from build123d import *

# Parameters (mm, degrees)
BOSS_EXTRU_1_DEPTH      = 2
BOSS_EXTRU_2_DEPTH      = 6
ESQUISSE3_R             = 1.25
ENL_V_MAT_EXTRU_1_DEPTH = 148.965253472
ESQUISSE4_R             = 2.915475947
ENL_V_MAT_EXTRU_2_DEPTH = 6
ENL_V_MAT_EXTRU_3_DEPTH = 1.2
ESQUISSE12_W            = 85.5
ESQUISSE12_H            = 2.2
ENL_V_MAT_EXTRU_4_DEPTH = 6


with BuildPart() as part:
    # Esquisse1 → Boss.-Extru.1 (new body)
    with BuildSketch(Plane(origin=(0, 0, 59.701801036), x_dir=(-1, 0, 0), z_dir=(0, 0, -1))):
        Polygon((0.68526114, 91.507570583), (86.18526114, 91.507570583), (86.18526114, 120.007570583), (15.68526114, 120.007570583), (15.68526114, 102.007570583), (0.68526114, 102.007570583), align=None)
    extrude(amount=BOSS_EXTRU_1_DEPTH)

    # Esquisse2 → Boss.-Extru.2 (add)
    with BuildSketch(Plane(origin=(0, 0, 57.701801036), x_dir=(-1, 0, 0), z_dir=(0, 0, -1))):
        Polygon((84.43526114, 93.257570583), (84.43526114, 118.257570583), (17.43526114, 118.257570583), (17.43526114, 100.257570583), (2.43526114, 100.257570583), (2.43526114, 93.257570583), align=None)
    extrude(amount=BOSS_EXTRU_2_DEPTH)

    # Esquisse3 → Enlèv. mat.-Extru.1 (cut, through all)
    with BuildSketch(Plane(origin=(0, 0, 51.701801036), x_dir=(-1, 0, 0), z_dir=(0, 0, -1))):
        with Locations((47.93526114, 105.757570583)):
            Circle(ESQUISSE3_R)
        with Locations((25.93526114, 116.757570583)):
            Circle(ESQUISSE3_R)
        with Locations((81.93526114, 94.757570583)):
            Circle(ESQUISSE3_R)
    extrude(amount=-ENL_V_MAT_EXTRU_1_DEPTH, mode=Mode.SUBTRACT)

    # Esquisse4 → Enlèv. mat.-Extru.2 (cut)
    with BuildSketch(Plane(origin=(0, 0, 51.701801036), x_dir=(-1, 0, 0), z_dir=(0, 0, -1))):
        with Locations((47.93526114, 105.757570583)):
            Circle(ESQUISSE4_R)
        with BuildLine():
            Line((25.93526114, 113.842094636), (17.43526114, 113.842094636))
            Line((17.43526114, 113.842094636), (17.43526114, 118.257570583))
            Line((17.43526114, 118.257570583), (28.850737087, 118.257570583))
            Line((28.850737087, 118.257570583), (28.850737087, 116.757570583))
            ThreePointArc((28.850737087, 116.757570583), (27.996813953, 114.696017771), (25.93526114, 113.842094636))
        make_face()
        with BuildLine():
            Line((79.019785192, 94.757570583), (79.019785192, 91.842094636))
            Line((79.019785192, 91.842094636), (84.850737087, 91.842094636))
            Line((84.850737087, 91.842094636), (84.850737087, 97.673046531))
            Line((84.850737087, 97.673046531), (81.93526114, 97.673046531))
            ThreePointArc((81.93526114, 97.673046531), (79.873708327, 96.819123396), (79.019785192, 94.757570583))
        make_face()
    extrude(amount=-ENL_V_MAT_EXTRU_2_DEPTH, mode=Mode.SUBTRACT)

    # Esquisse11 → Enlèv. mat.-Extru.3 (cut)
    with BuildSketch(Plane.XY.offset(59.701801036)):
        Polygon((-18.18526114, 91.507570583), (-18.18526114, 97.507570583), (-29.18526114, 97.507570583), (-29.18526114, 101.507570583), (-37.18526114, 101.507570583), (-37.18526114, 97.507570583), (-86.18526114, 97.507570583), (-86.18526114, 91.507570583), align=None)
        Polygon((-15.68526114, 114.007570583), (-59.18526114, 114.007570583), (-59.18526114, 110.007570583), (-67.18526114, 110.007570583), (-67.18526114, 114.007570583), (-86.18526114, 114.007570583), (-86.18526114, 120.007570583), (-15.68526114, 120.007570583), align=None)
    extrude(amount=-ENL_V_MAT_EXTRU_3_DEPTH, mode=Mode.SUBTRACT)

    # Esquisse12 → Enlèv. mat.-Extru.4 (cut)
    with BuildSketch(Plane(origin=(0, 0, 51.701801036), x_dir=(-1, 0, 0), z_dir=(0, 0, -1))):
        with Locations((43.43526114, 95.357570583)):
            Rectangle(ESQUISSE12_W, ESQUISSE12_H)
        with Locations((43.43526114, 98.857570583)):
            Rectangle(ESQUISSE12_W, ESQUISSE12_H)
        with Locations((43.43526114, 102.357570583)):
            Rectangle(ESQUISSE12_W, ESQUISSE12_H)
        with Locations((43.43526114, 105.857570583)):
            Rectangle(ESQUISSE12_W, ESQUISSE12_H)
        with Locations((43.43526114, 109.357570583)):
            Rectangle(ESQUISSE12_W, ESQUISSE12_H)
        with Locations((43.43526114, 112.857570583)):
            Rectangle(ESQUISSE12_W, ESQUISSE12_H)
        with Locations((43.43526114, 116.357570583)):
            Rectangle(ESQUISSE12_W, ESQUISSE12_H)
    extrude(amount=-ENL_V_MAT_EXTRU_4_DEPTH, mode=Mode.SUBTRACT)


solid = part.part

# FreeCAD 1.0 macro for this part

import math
import FreeCAD as App
import Part
import Sketcher

V = App.Vector
Q = App.Units.Quantity


def add_polygon(sketch, points):
    """Adds a closed chain of lines whose ends are joined by coincident constraints."""
    first, n = sketch.GeometryCount, len(points)
    for a, b in zip(points, points[1:] + points[:1]):
        sketch.addGeometry(Part.LineSegment(App.Vector(*a, 0), App.Vector(*b, 0)), False)
    for i in range(n):
        sketch.addConstraint(Sketcher.Constraint("Coincident", first + i, 2, first + (i + 1) % n, 1))

doc = App.newDocument("Part")
body = doc.addObject("PartDesign::Body", "Body")

sketch1 = body.newObject("Sketcher::SketchObject", "Sketch")
sketch1.AttachmentSupport = (doc.getObject("XY_Plane"), [""])
sketch1.MapMode = "FlatFace"
sketch1.AttachmentOffset = App.Placement(V(0, 0, 59.701801), App.Rotation())
add_polygon(sketch1, [(-1, 92), (-86, 92), (-86, 120), (-16, 120), (-16, 102), (-1, 102)])
sketch1.addConstraint(Sketcher.Constraint("Horizontal", 0))
sketch1.addConstraint(Sketcher.Constraint("Vertical", 1))
sketch1.addConstraint(Sketcher.Constraint("Horizontal", 2))
sketch1.addConstraint(Sketcher.Constraint("Vertical", 3))
sketch1.addConstraint(Sketcher.Constraint("Horizontal", 4))
sketch1.addConstraint(Sketcher.Constraint("Vertical", 5))
sketch1.addConstraint(Sketcher.Constraint("DistanceX", 4, 1, 4, 2, Q("15 mm")))
sketch1.addConstraint(Sketcher.Constraint("DistanceY", 3, 2, 3, 1, Q("18 mm")))
sketch1.addConstraint(Sketcher.Constraint("DistanceX", 0, 2, 0, 1, Q("85.5 mm")))
sketch1.addConstraint(Sketcher.Constraint("DistanceY", 1, 1, 1, 2, Q("28.5 mm")))
sketch1.addConstraint(Sketcher.Constraint("DistanceX", 0, 2, -1, 1, Q("86.185261 mm")))
sketch1.addConstraint(Sketcher.Constraint("DistanceY", -1, 1, 0, 2, Q("91.507571 mm")))
pad1 = body.newObject("PartDesign::Pad", "Pad")
pad1.Profile = sketch1
pad1.Length = 2
pad1.Reversed = True

sketch2 = body.newObject("Sketcher::SketchObject", "Sketch001")
sketch2.AttachmentSupport = (doc.getObject("XY_Plane"), [""])
sketch2.MapMode = "FlatFace"
sketch2.AttachmentOffset = App.Placement(V(0, 0, 57.701801), App.Rotation())
add_polygon(sketch2, [(-84, 93), (-84, 118), (-17, 118), (-17, 100), (-2, 100), (-2, 93)])
sketch2.addConstraint(Sketcher.Constraint("Vertical", 0))
sketch2.addConstraint(Sketcher.Constraint("Horizontal", 1))
sketch2.addConstraint(Sketcher.Constraint("Vertical", 2))
sketch2.addConstraint(Sketcher.Constraint("Horizontal", 3))
sketch2.addConstraint(Sketcher.Constraint("Vertical", 4))
sketch2.addConstraint(Sketcher.Constraint("Horizontal", 5))
sketch2.addConstraint(Sketcher.Constraint("DistanceX", 1, 1, 1, 2, Q("67 mm")))
sketch2.addConstraint(Sketcher.Constraint("DistanceX", 3, 1, 3, 2, Q("15 mm")))
sketch2.addConstraint(Sketcher.Constraint("DistanceY", 0, 1, 0, 2, Q("25 mm")))
sketch2.addConstraint(Sketcher.Constraint("DistanceY", 2, 2, 2, 1, Q("18 mm")))
sketch2.addConstraint(Sketcher.Constraint("DistanceX", 0, 2, -1, 1, Q("84.435261 mm")))
sketch2.addConstraint(Sketcher.Constraint("DistanceY", -1, 1, 0, 2, Q("118.257571 mm")))
pad2 = body.newObject("PartDesign::Pad", "Pad001")
pad2.Profile = sketch2
pad2.Length = 6
pad2.Reversed = True

sketch3 = body.newObject("Sketcher::SketchObject", "Sketch002")
sketch3.AttachmentSupport = (doc.getObject("XY_Plane"), [""])
sketch3.MapMode = "FlatFace"
sketch3.AttachmentOffset = App.Placement(V(0, 0, 51.701801), App.Rotation())
sketch3.addGeometry(Part.Circle(V(-47.9, 105.8, 0), V(0, 0, 1), 1.2), False)
sketch3.addGeometry(Part.Circle(V(-25.9, 116.8, 0), V(0, 0, 1), 1.2), False)
sketch3.addGeometry(Part.Circle(V(-81.9, 94.8, 0), V(0, 0, 1), 1.2), False)
sketch3.addConstraint(Sketcher.Constraint("Equal", 0, 1))
sketch3.addConstraint(Sketcher.Constraint("Equal", 1, 2))
sketch3.addConstraint(Sketcher.Constraint("Diameter", 0, Q("2.5 mm")))
sketch3.addConstraint(Sketcher.Constraint("DistanceX", 0, 3, 1, 3, Q("22 mm")))
sketch3.addConstraint(Sketcher.Constraint("DistanceY", 0, 3, 1, 3, Q("11 mm")))
sketch3.addConstraint(Sketcher.Constraint("DistanceX", 2, 3, 0, 3, Q("34 mm")))
sketch3.addConstraint(Sketcher.Constraint("DistanceY", 2, 3, 0, 3, Q("11 mm")))
sketch3.addConstraint(Sketcher.Constraint("DistanceX", 0, 3, -1, 1, Q("47.935261 mm")))
sketch3.addConstraint(Sketcher.Constraint("DistanceY", -1, 1, 0, 3, Q("105.757571 mm")))
pocket1 = body.newObject("PartDesign::Pocket", "Pocket")
pocket1.Profile = sketch3
pocket1.Type = "ThroughAll"
pocket1.Reversed = True

sketch4 = body.newObject("Sketcher::SketchObject", "Sketch003")
sketch4.AttachmentSupport = (doc.getObject("XY_Plane"), [""])
sketch4.MapMode = "FlatFace"
sketch4.AttachmentOffset = App.Placement(V(0, 0, 51.701801), App.Rotation())
sketch4.addGeometry(Part.Circle(V(-47.9, 105.8, 0), V(0, 0, 1), 2.9), False)
sketch4.addGeometry(Part.LineSegment(V(-17.4, 113.8, 0), V(-25.9, 113.8, 0)), False)
sketch4.addGeometry(Part.ArcOfCircle(Part.Circle(V(-25.9, 116.8, 0), V(0, 0, 1), 2.9), math.radians(180), math.radians(270)), False)
sketch4.addGeometry(Part.LineSegment(V(-28.9, 116.8, 0), V(-28.9, 118.3, 0)), False)
sketch4.addGeometry(Part.LineSegment(V(-28.9, 118.3, 0), V(-17.4, 118.3, 0)), False)
sketch4.addGeometry(Part.LineSegment(V(-17.4, 118.3, 0), V(-17.4, 113.8, 0)), False)
sketch4.addGeometry(Part.LineSegment(V(-79, 94.8, 0), V(-79, 91.8, 0)), False)
sketch4.addGeometry(Part.LineSegment(V(-79, 91.8, 0), V(-84.9, 91.8, 0)), False)
sketch4.addGeometry(Part.LineSegment(V(-84.9, 91.8, 0), V(-84.9, 97.7, 0)), False)
sketch4.addGeometry(Part.LineSegment(V(-84.9, 97.7, 0), V(-81.9, 97.7, 0)), False)
sketch4.addGeometry(Part.ArcOfCircle(Part.Circle(V(-81.9, 94.8, 0), V(0, 0, 1), 2.9), math.radians(0), math.radians(90)), False)
sketch4.addConstraint(Sketcher.Constraint("Tangent", 1, 2, 2, 2))
sketch4.addConstraint(Sketcher.Constraint("Tangent", 2, 1, 3, 1))
sketch4.addConstraint(Sketcher.Constraint("Coincident", 3, 2, 4, 1))
sketch4.addConstraint(Sketcher.Constraint("Coincident", 4, 2, 5, 1))
sketch4.addConstraint(Sketcher.Constraint("Coincident", 5, 2, 1, 1))
sketch4.addConstraint(Sketcher.Constraint("Coincident", 6, 2, 7, 1))
sketch4.addConstraint(Sketcher.Constraint("Coincident", 7, 2, 8, 1))
sketch4.addConstraint(Sketcher.Constraint("Coincident", 8, 2, 9, 1))
sketch4.addConstraint(Sketcher.Constraint("Tangent", 9, 2, 10, 2))
sketch4.addConstraint(Sketcher.Constraint("Tangent", 10, 1, 6, 1))
sketch4.addConstraint(Sketcher.Constraint("Horizontal", 1))
sketch4.addConstraint(Sketcher.Constraint("Vertical", 3))
sketch4.addConstraint(Sketcher.Constraint("Horizontal", 4))
sketch4.addConstraint(Sketcher.Constraint("Vertical", 5))
sketch4.addConstraint(Sketcher.Constraint("Vertical", 6))
sketch4.addConstraint(Sketcher.Constraint("Horizontal", 7))
sketch4.addConstraint(Sketcher.Constraint("Vertical", 8))
sketch4.addConstraint(Sketcher.Constraint("Horizontal", 9))
sketch4.addConstraint(Sketcher.Constraint("Equal", 0, 2))
sketch4.addConstraint(Sketcher.Constraint("Equal", 2, 10))
sketch4.addConstraint(Sketcher.Constraint("Equal", 9, 6))
sketch4.addConstraint(Sketcher.Constraint("DistanceX", 1, 2, 1, 1, Q("8.5 mm")))
sketch4.addConstraint(Sketcher.Constraint("DistanceY", 3, 1, 3, 2, Q("1.5 mm")))
sketch4.addConstraint(Sketcher.Constraint("DistanceX", 0, 3, 2, 3, Q("22 mm")))
sketch4.addConstraint(Sketcher.Constraint("DistanceY", 0, 3, 2, 3, Q("11 mm")))
sketch4.addConstraint(Sketcher.Constraint("DistanceX", 10, 3, 0, 3, Q("34 mm")))
sketch4.addConstraint(Sketcher.Constraint("DistanceY", 10, 3, 0, 3, Q("11 mm")))
sketch4.addConstraint(Sketcher.Constraint("DistanceY", 6, 2, 1, 2, Q("22 mm")))
sketch4.addConstraint(Sketcher.Constraint("Diameter", 0, Q("5.830952 mm")))
sketch4.addConstraint(Sketcher.Constraint("DistanceX", 0, 3, -1, 1, Q("47.935261 mm")))
sketch4.addConstraint(Sketcher.Constraint("DistanceY", -1, 1, 0, 3, Q("105.757571 mm")))
pocket2 = body.newObject("PartDesign::Pocket", "Pocket001")
pocket2.Profile = sketch4
pocket2.Length = 6
pocket2.Reversed = True

sketch5 = body.newObject("Sketcher::SketchObject", "Sketch004")
sketch5.AttachmentSupport = (doc.getObject("XY_Plane"), [""])
sketch5.MapMode = "FlatFace"
sketch5.AttachmentOffset = App.Placement(V(0, 0, 59.701801), App.Rotation())
add_polygon(sketch5, [(-18.2, 91.5), (-18.2, 97.5), (-29.2, 97.5), (-29.2, 101.5), (-37.2, 101.5), (-37.2, 97.5), (-86.2, 97.5), (-86.2, 91.5)])
add_polygon(sketch5, [(-59.2, 114), (-15.7, 114), (-15.7, 120), (-86.2, 120), (-86.2, 114), (-67.2, 114), (-67.2, 110), (-59.2, 110)])
sketch5.addConstraint(Sketcher.Constraint("Vertical", 0))
sketch5.addConstraint(Sketcher.Constraint("Horizontal", 1))
sketch5.addConstraint(Sketcher.Constraint("Vertical", 2))
sketch5.addConstraint(Sketcher.Constraint("Horizontal", 3))
sketch5.addConstraint(Sketcher.Constraint("Vertical", 4))
sketch5.addConstraint(Sketcher.Constraint("Horizontal", 5))
sketch5.addConstraint(Sketcher.Constraint("Vertical", 6))
sketch5.addConstraint(Sketcher.Constraint("Horizontal", 7))
sketch5.addConstraint(Sketcher.Constraint("Horizontal", 8))
sketch5.addConstraint(Sketcher.Constraint("Vertical", 9))
sketch5.addConstraint(Sketcher.Constraint("Horizontal", 10))
sketch5.addConstraint(Sketcher.Constraint("Vertical", 11))
sketch5.addConstraint(Sketcher.Constraint("Horizontal", 12))
sketch5.addConstraint(Sketcher.Constraint("Vertical", 13))
sketch5.addConstraint(Sketcher.Constraint("Horizontal", 14))
sketch5.addConstraint(Sketcher.Constraint("Vertical", 15))
sketch5.addConstraint(Sketcher.Constraint("Horizontal", 1, 2, 4, 2))
sketch5.addConstraint(Sketcher.Constraint("Horizontal", 8, 2, 11, 2))
sketch5.addConstraint(Sketcher.Constraint("Vertical", 6, 2, 10, 2))
sketch5.addConstraint(Sketcher.Constraint("Equal", 3, 14))
sketch5.addConstraint(Sketcher.Constraint("Equal", 6, 9))
sketch5.addConstraint(Sketcher.Constraint("Equal", 4, 13))
sketch5.addConstraint(Sketcher.Constraint("DistanceX", 1, 2, 1, 1, Q("11 mm")))
sketch5.addConstraint(Sketcher.Constraint("DistanceX", 3, 2, 3, 1, Q("8 mm")))
sketch5.addConstraint(Sketcher.Constraint("DistanceX", 5, 2, 5, 1, Q("49 mm")))
sketch5.addConstraint(Sketcher.Constraint("DistanceX", 12, 1, 12, 2, Q("19 mm")))
sketch5.addConstraint(Sketcher.Constraint("DistanceY", 0, 1, 0, 2, Q("6 mm")))
sketch5.addConstraint(Sketcher.Constraint("DistanceY", 2, 1, 2, 2, Q("4 mm")))
sketch5.addConstraint(Sketcher.Constraint("DistanceX", 8, 1, 8, 2, Q("43.5 mm")))
sketch5.addConstraint(Sketcher.Constraint("DistanceY", 0, 2, 8, 2, Q("16.5 mm")))
sketch5.addConstraint(Sketcher.Constraint("DistanceX", 0, 2, -1, 1, Q("18.185261 mm")))
sketch5.addConstraint(Sketcher.Constraint("DistanceY", -1, 1, 0, 2, Q("97.507571 mm")))
pocket3 = body.newObject("PartDesign::Pocket", "Pocket002")
pocket3.Profile = sketch5
pocket3.Length = 1.2

sketch6 = body.newObject("Sketcher::SketchObject", "Sketch005")
sketch6.AttachmentSupport = (doc.getObject("XY_Plane"), [""])
sketch6.MapMode = "FlatFace"
sketch6.AttachmentOffset = App.Placement(V(0, 0, 51.701801), App.Rotation())
add_polygon(sketch6, [(-0.7, 96.5), (-0.7, 94.3), (-86.2, 94.3), (-86.2, 96.5)])
add_polygon(sketch6, [(-0.7, 100), (-0.7, 97.8), (-86.2, 97.8), (-86.2, 100)])
add_polygon(sketch6, [(-0.7, 103.5), (-0.7, 101.3), (-86.2, 101.3), (-86.2, 103.5)])
add_polygon(sketch6, [(-0.7, 107), (-0.7, 104.8), (-86.2, 104.8), (-86.2, 107)])
add_polygon(sketch6, [(-0.7, 110.5), (-0.7, 108.3), (-86.2, 108.3), (-86.2, 110.5)])
add_polygon(sketch6, [(-0.7, 114), (-0.7, 111.8), (-86.2, 111.8), (-86.2, 114)])
add_polygon(sketch6, [(-0.7, 117.5), (-0.7, 115.3), (-86.2, 115.3), (-86.2, 117.5)])
sketch6.addConstraint(Sketcher.Constraint("Vertical", 0))
sketch6.addConstraint(Sketcher.Constraint("Horizontal", 1))
sketch6.addConstraint(Sketcher.Constraint("Vertical", 2))
sketch6.addConstraint(Sketcher.Constraint("Horizontal", 3))
sketch6.addConstraint(Sketcher.Constraint("Vertical", 4))
sketch6.addConstraint(Sketcher.Constraint("Horizontal", 5))
sketch6.addConstraint(Sketcher.Constraint("Vertical", 6))
sketch6.addConstraint(Sketcher.Constraint("Horizontal", 7))
sketch6.addConstraint(Sketcher.Constraint("Vertical", 8))
sketch6.addConstraint(Sketcher.Constraint("Horizontal", 9))
sketch6.addConstraint(Sketcher.Constraint("Vertical", 10))
sketch6.addConstraint(Sketcher.Constraint("Horizontal", 11))
sketch6.addConstraint(Sketcher.Constraint("Vertical", 12))
sketch6.addConstraint(Sketcher.Constraint("Horizontal", 13))
sketch6.addConstraint(Sketcher.Constraint("Vertical", 14))
sketch6.addConstraint(Sketcher.Constraint("Horizontal", 15))
sketch6.addConstraint(Sketcher.Constraint("Vertical", 16))
sketch6.addConstraint(Sketcher.Constraint("Horizontal", 17))
sketch6.addConstraint(Sketcher.Constraint("Vertical", 18))
sketch6.addConstraint(Sketcher.Constraint("Horizontal", 19))
sketch6.addConstraint(Sketcher.Constraint("Vertical", 20))
sketch6.addConstraint(Sketcher.Constraint("Horizontal", 21))
sketch6.addConstraint(Sketcher.Constraint("Vertical", 22))
sketch6.addConstraint(Sketcher.Constraint("Horizontal", 23))
sketch6.addConstraint(Sketcher.Constraint("Vertical", 24))
sketch6.addConstraint(Sketcher.Constraint("Horizontal", 25))
sketch6.addConstraint(Sketcher.Constraint("Vertical", 26))
sketch6.addConstraint(Sketcher.Constraint("Horizontal", 27))
sketch6.addConstraint(Sketcher.Constraint("Vertical", 3, 2, 4, 2))
sketch6.addConstraint(Sketcher.Constraint("Vertical", 2, 2, 5, 2))
sketch6.addConstraint(Sketcher.Constraint("Vertical", 7, 2, 8, 2))
sketch6.addConstraint(Sketcher.Constraint("Vertical", 6, 2, 9, 2))
sketch6.addConstraint(Sketcher.Constraint("Vertical", 11, 2, 12, 2))
sketch6.addConstraint(Sketcher.Constraint("Vertical", 10, 2, 13, 2))
sketch6.addConstraint(Sketcher.Constraint("Vertical", 15, 2, 16, 2))
sketch6.addConstraint(Sketcher.Constraint("Vertical", 14, 2, 17, 2))
sketch6.addConstraint(Sketcher.Constraint("Vertical", 19, 2, 20, 2))
sketch6.addConstraint(Sketcher.Constraint("Vertical", 18, 2, 21, 2))
sketch6.addConstraint(Sketcher.Constraint("Vertical", 23, 2, 24, 2))
sketch6.addConstraint(Sketcher.Constraint("Vertical", 22, 2, 25, 2))
sketch6.addConstraint(Sketcher.Constraint("Equal", 2, 4))
sketch6.addConstraint(Sketcher.Constraint("Equal", 6, 8))
sketch6.addConstraint(Sketcher.Constraint("Equal", 10, 12))
sketch6.addConstraint(Sketcher.Constraint("Equal", 14, 16))
sketch6.addConstraint(Sketcher.Constraint("Equal", 18, 20))
sketch6.addConstraint(Sketcher.Constraint("Equal", 22, 24))
sketch6.addConstraint(Sketcher.Constraint("DistanceX", 1, 2, 1, 1, Q("85.5 mm")))
sketch6.addConstraint(Sketcher.Constraint("DistanceY", 0, 2, 0, 1, Q("2.2 mm")))
sketch6.addConstraint(Sketcher.Constraint("DistanceY", 0, 2, 8, 2, Q("7 mm")))
sketch6.addConstraint(Sketcher.Constraint("DistanceY", 4, 2, 12, 2, Q("7 mm")))
sketch6.addConstraint(Sketcher.Constraint("DistanceY", 8, 2, 16, 2, Q("7 mm")))
sketch6.addConstraint(Sketcher.Constraint("DistanceY", 12, 2, 20, 2, Q("7 mm")))
sketch6.addConstraint(Sketcher.Constraint("DistanceY", 16, 2, 24, 2, Q("7 mm")))
sketch6.addConstraint(Sketcher.Constraint("DistanceY", 3, 2, 4, 2, Q("1.3 mm")))
sketch6.addConstraint(Sketcher.Constraint("DistanceX", 0, 2, -1, 1, Q("0.685261 mm")))
sketch6.addConstraint(Sketcher.Constraint("DistanceY", -1, 1, 0, 2, Q("94.257571 mm")))
pocket4 = body.newObject("PartDesign::Pocket", "Pocket003")
pocket4.Profile = sketch6
pocket4.Length = 6
pocket4.Reversed = True

doc.recompute()
